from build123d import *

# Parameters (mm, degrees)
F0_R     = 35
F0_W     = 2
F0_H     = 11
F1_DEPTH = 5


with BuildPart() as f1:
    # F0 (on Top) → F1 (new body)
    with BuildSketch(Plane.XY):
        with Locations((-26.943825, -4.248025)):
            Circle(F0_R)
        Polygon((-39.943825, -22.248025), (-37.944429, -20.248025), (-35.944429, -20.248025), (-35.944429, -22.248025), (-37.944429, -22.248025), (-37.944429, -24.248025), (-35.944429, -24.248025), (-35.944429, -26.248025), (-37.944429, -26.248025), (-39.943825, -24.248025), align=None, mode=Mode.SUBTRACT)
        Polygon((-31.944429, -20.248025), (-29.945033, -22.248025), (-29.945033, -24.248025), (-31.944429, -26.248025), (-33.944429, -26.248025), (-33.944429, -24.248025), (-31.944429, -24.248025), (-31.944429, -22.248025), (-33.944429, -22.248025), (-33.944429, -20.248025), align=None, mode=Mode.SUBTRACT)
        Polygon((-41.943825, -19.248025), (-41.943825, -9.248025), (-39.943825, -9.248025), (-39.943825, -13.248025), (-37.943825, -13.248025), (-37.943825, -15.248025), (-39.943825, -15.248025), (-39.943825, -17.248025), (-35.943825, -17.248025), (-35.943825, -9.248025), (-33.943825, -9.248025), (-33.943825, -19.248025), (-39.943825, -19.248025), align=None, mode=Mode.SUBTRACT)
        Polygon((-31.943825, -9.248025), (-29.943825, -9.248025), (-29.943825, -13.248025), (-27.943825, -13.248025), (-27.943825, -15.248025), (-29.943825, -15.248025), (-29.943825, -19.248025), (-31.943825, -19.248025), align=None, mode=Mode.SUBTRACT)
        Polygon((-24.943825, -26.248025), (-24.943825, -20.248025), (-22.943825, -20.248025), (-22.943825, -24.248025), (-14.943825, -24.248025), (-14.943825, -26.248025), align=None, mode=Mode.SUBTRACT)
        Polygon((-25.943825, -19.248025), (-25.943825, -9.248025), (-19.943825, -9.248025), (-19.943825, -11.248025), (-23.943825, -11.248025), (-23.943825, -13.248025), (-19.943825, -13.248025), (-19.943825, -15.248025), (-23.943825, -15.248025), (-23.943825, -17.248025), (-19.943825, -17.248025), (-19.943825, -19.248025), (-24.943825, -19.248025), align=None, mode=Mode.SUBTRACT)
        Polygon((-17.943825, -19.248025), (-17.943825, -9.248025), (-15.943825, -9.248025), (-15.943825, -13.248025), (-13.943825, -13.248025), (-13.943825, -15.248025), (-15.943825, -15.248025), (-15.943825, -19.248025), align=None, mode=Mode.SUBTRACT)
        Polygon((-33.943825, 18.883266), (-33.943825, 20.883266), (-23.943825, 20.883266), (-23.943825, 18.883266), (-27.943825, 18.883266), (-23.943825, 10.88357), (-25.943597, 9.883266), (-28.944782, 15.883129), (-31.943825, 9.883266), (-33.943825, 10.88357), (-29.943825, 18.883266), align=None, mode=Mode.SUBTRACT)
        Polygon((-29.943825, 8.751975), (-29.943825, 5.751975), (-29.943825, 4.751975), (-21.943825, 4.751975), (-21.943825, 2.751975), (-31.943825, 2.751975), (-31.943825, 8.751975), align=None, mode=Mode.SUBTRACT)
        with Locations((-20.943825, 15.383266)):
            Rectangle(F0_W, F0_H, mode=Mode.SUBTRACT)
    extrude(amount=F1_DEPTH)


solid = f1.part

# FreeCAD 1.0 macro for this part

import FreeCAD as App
import Part
import Sketcher

doc = App.newDocument("Part")
body = doc.addObject("PartDesign::Body", "Body")

# Sketch on XY plane
sketch1 = doc.addObject("Sketcher::SketchObject", "Sketch")
body.addObject(sketch1)
sketch1.AttachmentSupport = (doc.XY_Plane, [""])
sketch1.MapMode = "FlatFace"
sketch1.addGeometry(Part.Circle(App.Vector(-26.9, -4.2, 0), App.Vector(0, 0, 1), 35), False)
sketch1.addGeometry(Part.LineSegment(App.Vector(-39.9, -24.2, 0), App.Vector(-39.9, -22.2, 0)), False)
sketch1.addGeometry(Part.LineSegment(App.Vector(-39.9, -22.2, 0), App.Vector(-37.9, -20.2, 0)), False)
sketch1.addGeometry(Part.LineSegment(App.Vector(-37.9, -20.2, 0), App.Vector(-35.9, -20.2, 0)), False)
sketch1.addGeometry(Part.LineSegment(App.Vector(-35.9, -20.2, 0), App.Vector(-35.9, -22.2, 0)), False)
sketch1.addGeometry(Part.LineSegment(App.Vector(-35.9, -22.2, 0), App.Vector(-37.9, -22.2, 0)), False)
sketch1.addGeometry(Part.LineSegment(App.Vector(-37.9, -22.2, 0), App.Vector(-37.9, -24.2, 0)), False)
sketch1.addGeometry(Part.LineSegment(App.Vector(-37.9, -24.2, 0), App.Vector(-35.9, -24.2, 0)), False)
sketch1.addGeometry(Part.LineSegment(App.Vector(-35.9, -24.2, 0), App.Vector(-35.9, -26.2, 0)), False)
sketch1.addGeometry(Part.LineSegment(App.Vector(-35.9, -26.2, 0), App.Vector(-37.9, -26.2, 0)), False)
sketch1.addGeometry(Part.LineSegment(App.Vector(-37.9, -26.2, 0), App.Vector(-39.9, -24.2, 0)), False)
sketch1.addGeometry(Part.LineSegment(App.Vector(-33.9, -20.2, 0), App.Vector(-31.9, -20.2, 0)), False)
sketch1.addGeometry(Part.LineSegment(App.Vector(-31.9, -20.2, 0), App.Vector(-29.9, -22.2, 0)), False)
sketch1.addGeometry(Part.LineSegment(App.Vector(-29.9, -22.2, 0), App.Vector(-29.9, -24.2, 0)), False)
sketch1.addGeometry(Part.LineSegment(App.Vector(-29.9, -24.2, 0), App.Vector(-31.9, -26.2, 0)), False)
sketch1.addGeometry(Part.LineSegment(App.Vector(-31.9, -26.2, 0), App.Vector(-33.9, -26.2, 0)), False)
sketch1.addGeometry(Part.LineSegment(App.Vector(-33.9, -26.2, 0), App.Vector(-33.9, -24.2, 0)), False)
sketch1.addGeometry(Part.LineSegment(App.Vector(-33.9, -24.2, 0), App.Vector(-31.9, -24.2, 0)), False)
sketch1.addGeometry(Part.LineSegment(App.Vector(-31.9, -24.2, 0), App.Vector(-31.9, -22.2, 0)), False)
sketch1.addGeometry(Part.LineSegment(App.Vector(-31.9, -22.2, 0), App.Vector(-33.9, -22.2, 0)), False)
sketch1.addGeometry(Part.LineSegment(App.Vector(-33.9, -22.2, 0), App.Vector(-33.9, -20.2, 0)), False)
sketch1.addGeometry(Part.LineSegment(App.Vector(-33.9, -19.2, 0), App.Vector(-41.9, -19.2, 0)), False)
sketch1.addGeometry(Part.LineSegment(App.Vector(-41.9, -19.2, 0), App.Vector(-41.9, -9.2, 0)), False)
sketch1.addGeometry(Part.LineSegment(App.Vector(-41.9, -9.2, 0), App.Vector(-39.9, -9.2, 0)), False)
sketch1.addGeometry(Part.LineSegment(App.Vector(-39.9, -9.2, 0), App.Vector(-39.9, -13.2, 0)), False)
sketch1.addGeometry(Part.LineSegment(App.Vector(-39.9, -13.2, 0), App.Vector(-37.9, -13.2, 0)), False)
sketch1.addGeometry(Part.LineSegment(App.Vector(-37.9, -13.2, 0), App.Vector(-37.9, -15.2, 0)), False)
sketch1.addGeometry(Part.LineSegment(App.Vector(-37.9, -15.2, 0), App.Vector(-39.9, -15.2, 0)), False)
sketch1.addGeometry(Part.LineSegment(App.Vector(-39.9, -15.2, 0), App.Vector(-39.9, -17.2, 0)), False)
sketch1.addGeometry(Part.LineSegment(App.Vector(-39.9, -17.2, 0), App.Vector(-35.9, -17.2, 0)), False)
sketch1.addGeometry(Part.LineSegment(App.Vector(-35.9, -17.2, 0), App.Vector(-35.9, -9.2, 0)), False)
sketch1.addGeometry(Part.LineSegment(App.Vector(-35.9, -9.2, 0), App.Vector(-33.9, -9.2, 0)), False)
sketch1.addGeometry(Part.LineSegment(App.Vector(-33.9, -9.2, 0), App.Vector(-33.9, -19.2, 0)), False)
sketch1.addGeometry(Part.LineSegment(App.Vector(-31.9, -19.2, 0), App.Vector(-31.9, -9.2, 0)), False)
sketch1.addGeometry(Part.LineSegment(App.Vector(-31.9, -9.2, 0), App.Vector(-29.9, -9.2, 0)), False)
sketch1.addGeometry(Part.LineSegment(App.Vector(-29.9, -9.2, 0), App.Vector(-29.9, -13.2, 0)), False)
sketch1.addGeometry(Part.LineSegment(App.Vector(-29.9, -13.2, 0), App.Vector(-27.9, -13.2, 0)), False)
sketch1.addGeometry(Part.LineSegment(App.Vector(-27.9, -13.2, 0), App.Vector(-27.9, -15.2, 0)), False)
sketch1.addGeometry(Part.LineSegment(App.Vector(-27.9, -15.2, 0), App.Vector(-29.9, -15.2, 0)), False)
sketch1.addGeometry(Part.LineSegment(App.Vector(-29.9, -15.2, 0), App.Vector(-29.9, -19.2, 0)), False)
sketch1.addGeometry(Part.LineSegment(App.Vector(-29.9, -19.2, 0), App.Vector(-31.9, -19.2, 0)), False)
sketch1.addGeometry(Part.LineSegment(App.Vector(-14.9, -26.2, 0), App.Vector(-24.9, -26.2, 0)), False)
sketch1.addGeometry(Part.LineSegment(App.Vector(-24.9, -26.2, 0), App.Vector(-24.9, -20.2, 0)), False)
sketch1.addGeometry(Part.LineSegment(App.Vector(-24.9, -20.2, 0), App.Vector(-22.9, -20.2, 0)), False)
sketch1.addGeometry(Part.LineSegment(App.Vector(-22.9, -20.2, 0), App.Vector(-22.9, -24.2, 0)), False)
sketch1.addGeometry(Part.LineSegment(App.Vector(-22.9, -24.2, 0), App.Vector(-14.9, -24.2, 0)), False)
sketch1.addGeometry(Part.LineSegment(App.Vector(-14.9, -24.2, 0), App.Vector(-14.9, -26.2, 0)), False)
sketch1.addGeometry(Part.LineSegment(App.Vector(-19.9, -19.2, 0), App.Vector(-25.9, -19.2, 0)), False)
sketch1.addGeometry(Part.LineSegment(App.Vector(-25.9, -19.2, 0), App.Vector(-25.9, -9.2, 0)), False)
sketch1.addGeometry(Part.LineSegment(App.Vector(-25.9, -9.2, 0), App.Vector(-19.9, -9.2, 0)), False)
sketch1.addGeometry(Part.LineSegment(App.Vector(-19.9, -9.2, 0), App.Vector(-19.9, -11.2, 0)), False)
sketch1.addGeometry(Part.LineSegment(App.Vector(-19.9, -11.2, 0), App.Vector(-23.9, -11.2, 0)), False)
sketch1.addGeometry(Part.LineSegment(App.Vector(-23.9, -11.2, 0), App.Vector(-23.9, -13.2, 0)), False)
sketch1.addGeometry(Part.LineSegment(App.Vector(-23.9, -13.2, 0), App.Vector(-19.9, -13.2, 0)), False)
sketch1.addGeometry(Part.LineSegment(App.Vector(-19.9, -13.2, 0), App.Vector(-19.9, -15.2, 0)), False)
sketch1.addGeometry(Part.LineSegment(App.Vector(-19.9, -15.2, 0), App.Vector(-23.9, -15.2, 0)), False)
sketch1.addGeometry(Part.LineSegment(App.Vector(-23.9, -15.2, 0), App.Vector(-23.9, -17.2, 0)), False)
sketch1.addGeometry(Part.LineSegment(App.Vector(-23.9, -17.2, 0), App.Vector(-19.9, -17.2, 0)), False)
sketch1.addGeometry(Part.LineSegment(App.Vector(-19.9, -17.2, 0), App.Vector(-19.9, -19.2, 0)), False)
sketch1.addGeometry(Part.LineSegment(App.Vector(-15.9, -19.2, 0), App.Vector(-17.9, -19.2, 0)), False)
sketch1.addGeometry(Part.LineSegment(App.Vector(-17.9, -19.2, 0), App.Vector(-17.9, -9.2, 0)), False)
sketch1.addGeometry(Part.LineSegment(App.Vector(-17.9, -9.2, 0), App.Vector(-15.9, -9.2, 0)), False)
sketch1.addGeometry(Part.LineSegment(App.Vector(-15.9, -9.2, 0), App.Vector(-15.9, -13.2, 0)), False)
sketch1.addGeometry(Part.LineSegment(App.Vector(-15.9, -13.2, 0), App.Vector(-13.9, -13.2, 0)), False)
sketch1.addGeometry(Part.LineSegment(App.Vector(-13.9, -13.2, 0), App.Vector(-13.9, -15.2, 0)), False)
sketch1.addGeometry(Part.LineSegment(App.Vector(-13.9, -15.2, 0), App.Vector(-15.9, -15.2, 0)), False)
sketch1.addGeometry(Part.LineSegment(App.Vector(-15.9, -15.2, 0), App.Vector(-15.9, -19.2, 0)), False)
sketch1.addGeometry(Part.LineSegment(App.Vector(-29.9, 18.9, 0), App.Vector(-33.9, 18.9, 0)), False)
sketch1.addGeometry(Part.LineSegment(App.Vector(-33.9, 18.9, 0), App.Vector(-33.9, 20.9, 0)), False)
sketch1.addGeometry(Part.LineSegment(App.Vector(-33.9, 20.9, 0), App.Vector(-23.9, 20.9, 0)), False)
sketch1.addGeometry(Part.LineSegment(App.Vector(-23.9, 20.9, 0), App.Vector(-23.9, 18.9, 0)), False)
sketch1.addGeometry(Part.LineSegment(App.Vector(-23.9, 18.9, 0), App.Vector(-27.9, 18.9, 0)), False)
sketch1.addGeometry(Part.LineSegment(App.Vector(-27.9, 18.9, 0), App.Vector(-23.9, 10.9, 0)), False)
sketch1.addGeometry(Part.LineSegment(App.Vector(-23.9, 10.9, 0), App.Vector(-25.9, 9.9, 0)), False)
sketch1.addGeometry(Part.LineSegment(App.Vector(-25.9, 9.9, 0), App.Vector(-28.9, 15.9, 0)), False)
sketch1.addGeometry(Part.LineSegment(App.Vector(-28.9, 15.9, 0), App.Vector(-31.9, 9.9, 0)), False)
sketch1.addGeometry(Part.LineSegment(App.Vector(-31.9, 9.9, 0), App.Vector(-33.9, 10.9, 0)), False)
sketch1.addGeometry(Part.LineSegment(App.Vector(-33.9, 10.9, 0), App.Vector(-29.9, 18.9, 0)), False)
sketch1.addGeometry(Part.LineSegment(App.Vector(-31.9, 8.8, 0), App.Vector(-29.9, 8.8, 0)), False)
sketch1.addGeometry(Part.LineSegment(App.Vector(-29.9, 8.8, 0), App.Vector(-29.9, 4.8, 0)), False)
sketch1.addGeometry(Part.LineSegment(App.Vector(-29.9, 4.8, 0), App.Vector(-21.9, 4.8, 0)), False)
sketch1.addGeometry(Part.LineSegment(App.Vector(-21.9, 4.8, 0), App.Vector(-21.9, 2.8, 0)), False)
sketch1.addGeometry(Part.LineSegment(App.Vector(-21.9, 2.8, 0), App.Vector(-31.9, 2.8, 0)), False)
sketch1.addGeometry(Part.LineSegment(App.Vector(-31.9, 2.8, 0), App.Vector(-31.9, 8.8, 0)), False)
sketch1.addGeometry(Part.LineSegment(App.Vector(-19.9, 9.9, 0), App.Vector(-21.9, 9.9, 0)), False)
sketch1.addGeometry(Part.LineSegment(App.Vector(-21.9, 9.9, 0), App.Vector(-21.9, 20.9, 0)), False)
sketch1.addGeometry(Part.LineSegment(App.Vector(-21.9, 20.9, 0), App.Vector(-19.9, 20.9, 0)), False)
sketch1.addGeometry(Part.LineSegment(App.Vector(-19.9, 20.9, 0), App.Vector(-19.9, 9.9, 0)), False)
sketch1.addConstraint(Sketcher.Constraint("Coincident", 1, 2, 2, 1))
sketch1.addConstraint(Sketcher.Constraint("Coincident", 2, 2, 3, 1))
sketch1.addConstraint(Sketcher.Constraint("Coincident", 3, 2, 4, 1))
sketch1.addConstraint(Sketcher.Constraint("Coincident", 4, 2, 5, 1))
sketch1.addConstraint(Sketcher.Constraint("Coincident", 5, 2, 6, 1))
sketch1.addConstraint(Sketcher.Constraint("Coincident", 6, 2, 7, 1))
sketch1.addConstraint(Sketcher.Constraint("Coincident", 7, 2, 8, 1))
sketch1.addConstraint(Sketcher.Constraint("Coincident", 8, 2, 9, 1))
sketch1.addConstraint(Sketcher.Constraint("Coincident", 9, 2, 10, 1))
sketch1.addConstraint(Sketcher.Constraint("Coincident", 10, 2, 1, 1))
sketch1.addConstraint(Sketcher.Constraint("Coincident", 11, 2, 12, 1))
sketch1.addConstraint(Sketcher.Constraint("Coincident", 12, 2, 13, 1))
sketch1.addConstraint(Sketcher.Constraint("Coincident", 13, 2, 14, 1))
sketch1.addConstraint(Sketcher.Constraint("Coincident", 14, 2, 15, 1))
sketch1.addConstraint(Sketcher.Constraint("Coincident", 15, 2, 16, 1))
sketch1.addConstraint(Sketcher.Constraint("Coincident", 16, 2, 17, 1))
sketch1.addConstraint(Sketcher.Constraint("Coincident", 17, 2, 18, 1))
sketch1.addConstraint(Sketcher.Constraint("Coincident", 18, 2, 19, 1))
sketch1.addConstraint(Sketcher.Constraint("Coincident", 19, 2, 20, 1))
sketch1.addConstraint(Sketcher.Constraint("Coincident", 20, 2, 11, 1))
sketch1.addConstraint(Sketcher.Constraint("Coincident", 21, 2, 22, 1))
sketch1.addConstraint(Sketcher.Constraint("Coincident", 22, 2, 23, 1))
sketch1.addConstraint(Sketcher.Constraint("Coincident", 23, 2, 24, 1))
sketch1.addConstraint(Sketcher.Constraint("Coincident", 24, 2, 25, 1))
sketch1.addConstraint(Sketcher.Constraint("Coincident", 25, 2, 26, 1))
sketch1.addConstraint(Sketcher.Constraint("Coincident", 26, 2, 27, 1))
sketch1.addConstraint(Sketcher.Constraint("Coincident", 27, 2, 28, 1))
sketch1.addConstraint(Sketcher.Constraint("Coincident", 28, 2, 29, 1))
sketch1.addConstraint(Sketcher.Constraint("Coincident", 29, 2, 30, 1))
sketch1.addConstraint(Sketcher.Constraint("Coincident", 30, 2, 31, 1))
sketch1.addConstraint(Sketcher.Constraint("Coincident", 31, 2, 32, 1))
sketch1.addConstraint(Sketcher.Constraint("Coincident", 32, 2, 21, 1))
sketch1.addConstraint(Sketcher.Constraint("Coincident", 33, 2, 34, 1))
sketch1.addConstraint(Sketcher.Constraint("Coincident", 34, 2, 35, 1))
sketch1.addConstraint(Sketcher.Constraint("Coincident", 35, 2, 36, 1))
sketch1.addConstraint(Sketcher.Constraint("Coincident", 36, 2, 37, 1))
sketch1.addConstraint(Sketcher.Constraint("Coincident", 37, 2, 38, 1))
sketch1.addConstraint(Sketcher.Constraint("Coincident", 38, 2, 39, 1))
sketch1.addConstraint(Sketcher.Constraint("Coincident", 39, 2, 40, 1))
sketch1.addConstraint(Sketcher.Constraint("Coincident", 40, 2, 33, 1))
sketch1.addConstraint(Sketcher.Constraint("Coincident", 41, 2, 42, 1))
sketch1.addConstraint(Sketcher.Constraint("Coincident", 42, 2, 43, 1))
sketch1.addConstraint(Sketcher.Constraint("Coincident", 43, 2, 44, 1))
sketch1.addConstraint(Sketcher.Constraint("Coincident", 44, 2, 45, 1))
sketch1.addConstraint(Sketcher.Constraint("Coincident", 45, 2, 46, 1))
sketch1.addConstraint(Sketcher.Constraint("Coincident", 46, 2, 41, 1))
sketch1.addConstraint(Sketcher.Constraint("Coincident", 47, 2, 48, 1))
sketch1.addConstraint(Sketcher.Constraint("Coincident", 48, 2, 49, 1))
sketch1.addConstraint(Sketcher.Constraint("Coincident", 49, 2, 50, 1))
sketch1.addConstraint(Sketcher.Constraint("Coincident", 50, 2, 51, 1))
sketch1.addConstraint(Sketcher.Constraint("Coincident", 51, 2, 52, 1))
sketch1.addConstraint(Sketcher.Constraint("Coincident", 52, 2, 53, 1))
sketch1.addConstraint(Sketcher.Constraint("Coincident", 53, 2, 54, 1))
sketch1.addConstraint(Sketcher.Constraint("Coincident", 54, 2, 55, 1))
sketch1.addConstraint(Sketcher.Constraint("Coincident", 55, 2, 56, 1))
sketch1.addConstraint(Sketcher.Constraint("Coincident", 56, 2, 57, 1))
sketch1.addConstraint(Sketcher.Constraint("Coincident", 57, 2, 58, 1))
sketch1.addConstraint(Sketcher.Constraint("Coincident", 58, 2, 47, 1))
sketch1.addConstraint(Sketcher.Constraint("Coincident", 59, 2, 60, 1))
sketch1.addConstraint(Sketcher.Constraint("Coincident", 60, 2, 61, 1))
sketch1.addConstraint(Sketcher.Constraint("Coincident", 61, 2, 62, 1))
sketch1.addConstraint(Sketcher.Constraint("Coincident", 62, 2, 63, 1))
sketch1.addConstraint(Sketcher.Constraint("Coincident", 63, 2, 64, 1))
sketch1.addConstraint(Sketcher.Constraint("Coincident", 64, 2, 65, 1))
sketch1.addConstraint(Sketcher.Constraint("Coincident", 65, 2, 66, 1))
sketch1.addConstraint(Sketcher.Constraint("Coincident", 66, 2, 59, 1))
sketch1.addConstraint(Sketcher.Constraint("Coincident", 67, 2, 68, 1))
sketch1.addConstraint(Sketcher.Constraint("Coincident", 68, 2, 69, 1))
sketch1.addConstraint(Sketcher.Constraint("Coincident", 69, 2, 70, 1))
sketch1.addConstraint(Sketcher.Constraint("Coincident", 70, 2, 71, 1))
sketch1.addConstraint(Sketcher.Constraint("Coincident", 71, 2, 72, 1))
sketch1.addConstraint(Sketcher.Constraint("Coincident", 72, 2, 73, 1))
sketch1.addConstraint(Sketcher.Constraint("Coincident", 73, 2, 74, 1))
sketch1.addConstraint(Sketcher.Constraint("Coincident", 74, 2, 75, 1))
sketch1.addConstraint(Sketcher.Constraint("Coincident", 75, 2, 76, 1))
sketch1.addConstraint(Sketcher.Constraint("Coincident", 76, 2, 77, 1))
sketch1.addConstraint(Sketcher.Constraint("Coincident", 77, 2, 67, 1))
sketch1.addConstraint(Sketcher.Constraint("Coincident", 78, 2, 79, 1))
sketch1.addConstraint(Sketcher.Constraint("Coincident", 79, 2, 80, 1))
sketch1.addConstraint(Sketcher.Constraint("Coincident", 80, 2, 81, 1))
sketch1.addConstraint(Sketcher.Constraint("Coincident", 81, 2, 82, 1))
sketch1.addConstraint(Sketcher.Constraint("Coincident", 82, 2, 83, 1))
sketch1.addConstraint(Sketcher.Constraint("Coincident", 83, 2, 78, 1))
sketch1.addConstraint(Sketcher.Constraint("Coincident", 84, 2, 85, 1))
sketch1.addConstraint(Sketcher.Constraint("Coincident", 85, 2, 86, 1))
sketch1.addConstraint(Sketcher.Constraint("Coincident", 86, 2, 87, 1))
sketch1.addConstraint(Sketcher.Constraint("Coincident", 87, 2, 84, 1))
sketch1.addConstraint(Sketcher.Constraint("Vertical", 1))
sketch1.addConstraint(Sketcher.Constraint("Horizontal", 3))
sketch1.addConstraint(Sketcher.Constraint("Vertical", 4))
sketch1.addConstraint(Sketcher.Constraint("Horizontal", 5))
sketch1.addConstraint(Sketcher.Constraint("Vertical", 6))
sketch1.addConstraint(Sketcher.Constraint("Horizontal", 7))
sketch1.addConstraint(Sketcher.Constraint("Vertical", 8))
sketch1.addConstraint(Sketcher.Constraint("Horizontal", 9))
sketch1.addConstraint(Sketcher.Constraint("Horizontal", 11))
sketch1.addConstraint(Sketcher.Constraint("Vertical", 13))
sketch1.addConstraint(Sketcher.Constraint("Horizontal", 15))
sketch1.addConstraint(Sketcher.Constraint("Vertical", 16))
sketch1.addConstraint(Sketcher.Constraint("Horizontal", 17))
sketch1.addConstraint(Sketcher.Constraint("Vertical", 18))
sketch1.addConstraint(Sketcher.Constraint("Horizontal", 19))
sketch1.addConstraint(Sketcher.Constraint("Vertical", 20))
sketch1.addConstraint(Sketcher.Constraint("Horizontal", 21))
sketch1.addConstraint(Sketcher.Constraint("Vertical", 22))
sketch1.addConstraint(Sketcher.Constraint("Horizontal", 23))
sketch1.addConstraint(Sketcher.Constraint("Vertical", 24))
sketch1.addConstraint(Sketcher.Constraint("Horizontal", 25))
sketch1.addConstraint(Sketcher.Constraint("Vertical", 26))
sketch1.addConstraint(Sketcher.Constraint("Horizontal", 27))
sketch1.addConstraint(Sketcher.Constraint("Vertical", 28))
sketch1.addConstraint(Sketcher.Constraint("Horizontal", 29))
sketch1.addConstraint(Sketcher.Constraint("Vertical", 30))
sketch1.addConstraint(Sketcher.Constraint("Horizontal", 31))
sketch1.addConstraint(Sketcher.Constraint("Vertical", 32))
sketch1.addConstraint(Sketcher.Constraint("Vertical", 33))
sketch1.addConstraint(Sketcher.Constraint("Horizontal", 34))
sketch1.addConstraint(Sketcher.Constraint("Vertical", 35))
sketch1.addConstraint(Sketcher.Constraint("Horizontal", 36))
sketch1.addConstraint(Sketcher.Constraint("Vertical", 37))
sketch1.addConstraint(Sketcher.Constraint("Horizontal", 38))
sketch1.addConstraint(Sketcher.Constraint("Vertical", 39))
sketch1.addConstraint(Sketcher.Constraint("Horizontal", 40))
sketch1.addConstraint(Sketcher.Constraint("Horizontal", 41))
sketch1.addConstraint(Sketcher.Constraint("Vertical", 42))
sketch1.addConstraint(Sketcher.Constraint("Horizontal", 43))
sketch1.addConstraint(Sketcher.Constraint("Vertical", 44))
sketch1.addConstraint(Sketcher.Constraint("Horizontal", 45))
sketch1.addConstraint(Sketcher.Constraint("Vertical", 46))
sketch1.addConstraint(Sketcher.Constraint("Horizontal", 47))
sketch1.addConstraint(Sketcher.Constraint("Vertical", 48))
sketch1.addConstraint(Sketcher.Constraint("Horizontal", 49))
sketch1.addConstraint(Sketcher.Constraint("Vertical", 50))
sketch1.addConstraint(Sketcher.Constraint("Horizontal", 51))
sketch1.addConstraint(Sketcher.Constraint("Vertical", 52))
sketch1.addConstraint(Sketcher.Constraint("Horizontal", 53))
sketch1.addConstraint(Sketcher.Constraint("Vertical", 54))
sketch1.addConstraint(Sketcher.Constraint("Horizontal", 55))
sketch1.addConstraint(Sketcher.Constraint("Vertical", 56))
sketch1.addConstraint(Sketcher.Constraint("Horizontal", 57))
sketch1.addConstraint(Sketcher.Constraint("Vertical", 58))
sketch1.addConstraint(Sketcher.Constraint("Horizontal", 59))
sketch1.addConstraint(Sketcher.Constraint("Vertical", 60))
sketch1.addConstraint(Sketcher.Constraint("Horizontal", 61))
sketch1.addConstraint(Sketcher.Constraint("Vertical", 62))
sketch1.addConstraint(Sketcher.Constraint("Horizontal", 63))
sketch1.addConstraint(Sketcher.Constraint("Vertical", 64))
sketch1.addConstraint(Sketcher.Constraint("Horizontal", 65))
sketch1.addConstraint(Sketcher.Constraint("Vertical", 66))
sketch1.addConstraint(Sketcher.Constraint("Horizontal", 67))
sketch1.addConstraint(Sketcher.Constraint("Vertical", 68))
sketch1.addConstraint(Sketcher.Constraint("Horizontal", 69))
sketch1.addConstraint(Sketcher.Constraint("Vertical", 70))
sketch1.addConstraint(Sketcher.Constraint("Horizontal", 71))
sketch1.addConstraint(Sketcher.Constraint("Horizontal", 78))
sketch1.addConstraint(Sketcher.Constraint("Vertical", 79))
sketch1.addConstraint(Sketcher.Constraint("Horizontal", 80))
sketch1.addConstraint(Sketcher.Constraint("Vertical", 81))
sketch1.addConstraint(Sketcher.Constraint("Horizontal", 82))
sketch1.addConstraint(Sketcher.Constraint("Vertical", 83))
sketch1.addConstraint(Sketcher.Constraint("Horizontal", 84))
sketch1.addConstraint(Sketcher.Constraint("Vertical", 85))
sketch1.addConstraint(Sketcher.Constraint("Horizontal", 86))
sketch1.addConstraint(Sketcher.Constraint("Vertical", 87))
sketch1.addConstraint(Sketcher.Constraint("Parallel", 10, 12))
sketch1.addConstraint(Sketcher.Constraint("Parallel", 2, 14))
sketch1.addConstraint(Sketcher.Constraint("Perpendicular", 73, 74))
sketch1.addConstraint(Sketcher.Constraint("Horizontal", 1, 2, 4, 2))
sketch1.addConstraint(Sketcher.Constraint("Horizontal", 7, 2, 10, 2))
sketch1.addConstraint(Sketcher.Constraint("Horizontal", 3, 2, 11, 2))
sketch1.addConstraint(Sketcher.Constraint("Horizontal", 5, 2, 12, 2))
sketch1.addConstraint(Sketcher.Constraint("Horizontal", 10, 2, 13, 2))
sketch1.addConstraint(Sketcher.Constraint("Horizontal", 9, 2, 14, 2))
sketch1.addConstraint(Sketcher.Constraint("Horizontal", 13, 2, 16, 2))
sketch1.addConstraint(Sketcher.Constraint("Horizontal", 12, 2, 18, 2))
sketch1.addConstraint(Sketcher.Constraint("Horizontal", 23, 2, 30, 2))
sketch1.addConstraint(Sketcher.Constraint("Horizontal", 31, 2, 33, 2))
sketch1.addConstraint(Sketcher.Constraint("Horizontal", 25, 2, 35, 2))
sketch1.addConstraint(Sketcher.Constraint("Horizontal", 27, 2, 37, 2))
sketch1.addConstraint(Sketcher.Constraint("Horizontal", 32, 2, 39, 2))
sketch1.addConstraint(Sketcher.Constraint("Horizontal", 15, 2, 41, 2))
sketch1.addConstraint(Sketcher.Constraint("Horizontal", 20, 2, 42, 2))
sketch1.addConstraint(Sketcher.Constraint("Horizontal", 17, 2, 44, 2))
sketch1.addConstraint(Sketcher.Constraint("Horizontal", 40, 2, 47, 2))
sketch1.addConstraint(Sketcher.Constraint("Horizontal", 34, 2, 48, 2))
sketch1.addConstraint(Sketcher.Constraint("Horizontal", 36, 2, 52, 2))
sketch1.addConstraint(Sketcher.Constraint("Horizontal", 38, 2, 54, 2))
sketch1.addConstraint(Sketcher.Constraint("Horizontal", 29, 2, 56, 2))
sketch1.addConstraint(Sketcher.Constraint("Horizontal", 58, 2, 59, 2))
sketch1.addConstraint(Sketcher.Constraint("Horizontal", 49, 2, 60, 2))
sketch1.addConstraint(Sketcher.Constraint("Horizontal", 53, 2, 62, 2))
sketch1.addConstraint(Sketcher.Constraint("Horizontal", 55, 2, 64, 2))
sketch1.addConstraint(Sketcher.Constraint("Horizontal", 67, 2, 70, 2))
sketch1.addConstraint(Sketcher.Constraint("Horizontal", 73, 2, 75, 2))
sketch1.addConstraint(Sketcher.Constraint("Horizontal", 72, 2, 76, 2))
sketch1.addConstraint(Sketcher.Constraint("Horizontal", 75, 2, 84, 2))
sketch1.addConstraint(Sketcher.Constraint("Horizontal", 69, 2, 85, 2))
sketch1.addConstraint(Sketcher.Constraint("Vertical", 2, 2, 5, 2))
sketch1.addConstraint(Sketcher.Constraint("Vertical", 4, 2, 7, 2))
sketch1.addConstraint(Sketcher.Constraint("Vertical", 6, 2, 9, 2))
sketch1.addConstraint(Sketcher.Constraint("Vertical", 11, 2, 14, 2))
sketch1.addConstraint(Sketcher.Constraint("Vertical", 14, 2, 17, 2))
sketch1.addConstraint(Sketcher.Constraint("Vertical", 16, 2, 19, 2))
sketch1.addConstraint(Sketcher.Constraint("Vertical", 10, 2, 23, 2))
sketch1.addConstraint(Sketcher.Constraint("Vertical", 24, 2, 27, 2))
sketch1.addConstraint(Sketcher.Constraint("Vertical", 35, 2, 38, 2))
sketch1.addConstraint(Sketcher.Constraint("Vertical", 50, 2, 53, 2))
sketch1.addConstraint(Sketcher.Constraint("Vertical", 52, 2, 55, 2))
sketch1.addConstraint(Sketcher.Constraint("Vertical", 54, 2, 57, 2))
sketch1.addConstraint(Sketcher.Constraint("Vertical", 62, 2, 65, 2))
sketch1.addConstraint(Sketcher.Constraint("Vertical", 32, 2, 67, 2))
sketch1.addConstraint(Sketcher.Constraint("Vertical", 56, 2, 69, 2))
sketch1.addConstraint(Sketcher.Constraint("Vertical", 37, 2, 71, 2))
sketch1.addConstraint(Sketcher.Constraint("Vertical", 70, 2, 72, 2))
sketch1.addConstraint(Sketcher.Constraint("Vertical", 40, 2, 75, 2))
sketch1.addConstraint(Sketcher.Constraint("Vertical", 68, 2, 76, 2))
sketch1.addConstraint(Sketcher.Constraint("Vertical", 39, 2, 77, 2))
sketch1.addConstraint(Sketcher.Constraint("Vertical", 77, 2, 78, 2))
sketch1.addConstraint(Sketcher.Constraint("Vertical", 75, 2, 82, 2))
sketch1.addConstraint(Sketcher.Constraint("Vertical", 81, 2, 84, 2))
sketch1.addConstraint(Sketcher.Constraint("Vertical", 58, 2, 86, 2))
sketch1.addConstraint(Sketcher.Constraint("Equal", 9, 11))
sketch1.addConstraint(Sketcher.Constraint("Equal", 19, 23))
sketch1.addConstraint(Sketcher.Constraint("Equal", 23, 25))
sketch1.addConstraint(Sketcher.Constraint("Equal", 27, 31))
sketch1.addConstraint(Sketcher.Constraint("Equal", 31, 34))
sketch1.addConstraint(Sketcher.Constraint("Equal", 34, 36))
sketch1.addConstraint(Sketcher.Constraint("Equal", 40, 43))
sketch1.addConstraint(Sketcher.Constraint("Equal", 21, 45))
sketch1.addConstraint(Sketcher.Constraint("Equal", 29, 51))
sketch1.addConstraint(Sketcher.Constraint("Equal", 43, 59))
sketch1.addConstraint(Sketcher.Constraint("Equal", 61, 63))
sketch1.addConstraint(Sketcher.Constraint("Equal", 57, 67))
sketch1.addConstraint(Sketcher.Constraint("Equal", 41, 69))
sketch1.addConstraint(Sketcher.Constraint("Equal", 67, 71))
sketch1.addConstraint(Sketcher.Constraint("Equal", 45, 80))
sketch1.addConstraint(Sketcher.Constraint("Equal", 86, 1))
sketch1.addConstraint(Sketcher.Constraint("Equal", 1, 4))
sketch1.addConstraint(Sketcher.Constraint("Equal", 82, 22))
sketch1.addConstraint(Sketcher.Constraint("Equal", 71, 24))
sketch1.addConstraint(Sketcher.Constraint("Equal", 20, 26))
sketch1.addConstraint(Sketcher.Constraint("Equal", 26, 28))
sketch1.addConstraint(Sketcher.Constraint("Equal", 49, 42))
sketch1.addConstraint(Sketcher.Constraint("Equal", 46, 50))
sketch1.addConstraint(Sketcher.Constraint("Equal", 64, 68))
sketch1.addConstraint(Sketcher.Constraint("Equal", 66, 79))
sketch1.addConstraint(Sketcher.Constraint("Equal", 70, 81))
sketch1.addConstraint(Sketcher.Constraint("Diameter", 0, 70.0))
sketch1.addConstraint(Sketcher.Constraint("DistanceX", 3, 1, 3, 2, 2.0))
sketch1.addConstraint(Sketcher.Constraint("DistanceY", 85, 1, 85, 2, 11.0))
sketch1.addConstraint(Sketcher.Constraint("Distance", 2, 2.828))
sketch1.addConstraint(Sketcher.Constraint("Distance", 72, 8.944))
sketch1.addConstraint(Sketcher.Constraint("Distance", 73, 2.236))
sketch1.addConstraint(Sketcher.Constraint("Distance", 74, 6.708611))
sketch1.addConstraint(Sketcher.Constraint("DistanceX", 2, 2, -1, 1, 37.944429))
sketch1.addConstraint(Sketcher.Constraint("DistanceX", 11, 2, -1, 1, 31.944429))
sketch1.addConstraint(Sketcher.Constraint("DistanceY", -1, 1, 72, 2, 10.88357))
sketch1.addConstraint(Sketcher.Constraint("DistanceX", 0, 3, -1, 1, 26.943825))
sketch1.addConstraint(Sketcher.Constraint("DistanceY", 0, 3, -1, 1, 4.248025))
sketch1.addConstraint(Sketcher.Constraint("DistanceY", 1, 2, -1, 1, 22.248025))
sketch1.addConstraint(Sketcher.Constraint("DistanceY", 21, 2, -1, 1, 19.248025))
sketch1.addConstraint(Sketcher.Constraint("DistanceX", 41, 2, -1, 1, 24.943825))
sketch1.addConstraint(Sketcher.Constraint("DistanceX", 59, 2, -1, 1, 17.943825))
sketch1.addConstraint(Sketcher.Constraint("DistanceY", -1, 1, 78, 2, 8.751975))
pad1 = doc.addObject("PartDesign::Pad", "Pad")
body.addObject(pad1)
pad1.Profile = sketch1
pad1.Length = 5

doc.recompute()
